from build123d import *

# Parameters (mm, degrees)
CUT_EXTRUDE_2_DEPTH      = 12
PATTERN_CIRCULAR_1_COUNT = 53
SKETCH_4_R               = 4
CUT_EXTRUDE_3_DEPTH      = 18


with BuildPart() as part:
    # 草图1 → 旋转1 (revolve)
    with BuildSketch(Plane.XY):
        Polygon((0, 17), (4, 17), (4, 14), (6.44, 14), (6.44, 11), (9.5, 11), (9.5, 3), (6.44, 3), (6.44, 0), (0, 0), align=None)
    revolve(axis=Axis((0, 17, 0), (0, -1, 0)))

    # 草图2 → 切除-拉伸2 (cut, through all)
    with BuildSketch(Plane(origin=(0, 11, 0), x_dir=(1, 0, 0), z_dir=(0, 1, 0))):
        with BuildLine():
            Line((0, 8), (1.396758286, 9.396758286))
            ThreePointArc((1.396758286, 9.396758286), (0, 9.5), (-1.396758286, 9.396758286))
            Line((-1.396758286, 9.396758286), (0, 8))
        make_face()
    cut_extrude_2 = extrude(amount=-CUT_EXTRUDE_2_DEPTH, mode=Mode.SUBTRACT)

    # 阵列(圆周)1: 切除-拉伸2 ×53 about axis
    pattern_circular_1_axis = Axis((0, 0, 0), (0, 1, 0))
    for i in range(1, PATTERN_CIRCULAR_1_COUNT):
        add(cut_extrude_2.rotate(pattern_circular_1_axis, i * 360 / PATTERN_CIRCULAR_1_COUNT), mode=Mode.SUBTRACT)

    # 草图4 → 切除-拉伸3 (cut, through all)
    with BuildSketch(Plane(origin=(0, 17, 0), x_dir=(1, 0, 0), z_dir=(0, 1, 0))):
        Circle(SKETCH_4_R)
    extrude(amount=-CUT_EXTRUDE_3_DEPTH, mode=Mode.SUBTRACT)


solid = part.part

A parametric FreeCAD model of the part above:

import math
import FreeCAD as App
import Part
import Sketcher

doc = App.newDocument("Part")
body = doc.addObject("PartDesign::Body", "Body")

# Sketch on XY plane
sketch1 = body.newObject("Sketcher::SketchObject", "Sketch")
sketch1.AttachmentSupport = (doc.getObject("XY_Plane"), [""])
sketch1.MapMode = "FlatFace"
sketch1.addGeometry([
    Part.LineSegment(App.Vector(4, 17, 0), App.Vector(0, 17, 0)),  # 0
    Part.LineSegment(App.Vector(0, 17, 0), App.Vector(0, 0, 0)),  # 1
    Part.LineSegment(App.Vector(0, 0, 0), App.Vector(6.4, 0, 0)),  # 2
    Part.LineSegment(App.Vector(6.4, 0, 0), App.Vector(6.4, 3, 0)),  # 3
    Part.LineSegment(App.Vector(6.4, 3, 0), App.Vector(9.5, 3, 0)),  # 4
    Part.LineSegment(App.Vector(9.5, 3, 0), App.Vector(9.5, 11, 0)),  # 5
    Part.LineSegment(App.Vector(9.5, 11, 0), App.Vector(6.4, 11, 0)),  # 6
    Part.LineSegment(App.Vector(6.4, 11, 0), App.Vector(6.4, 14, 0)),  # 7
    Part.LineSegment(App.Vector(6.4, 14, 0), App.Vector(4, 14, 0)),  # 8
    Part.LineSegment(App.Vector(4, 14, 0), App.Vector(4, 17, 0)),  # 9
], False)
sketch1.addConstraint([
    Sketcher.Constraint("Coincident", 0, 2, 1, 1),
    Sketcher.Constraint("Coincident", 1, 2, 2, 1),
    Sketcher.Constraint("Coincident", 2, 2, 3, 1),
    Sketcher.Constraint("Coincident", 3, 2, 4, 1),
    Sketcher.Constraint("Coincident", 4, 2, 5, 1),
    Sketcher.Constraint("Coincident", 5, 2, 6, 1),
    Sketcher.Constraint("Coincident", 6, 2, 7, 1),
    Sketcher.Constraint("Coincident", 7, 2, 8, 1),
    Sketcher.Constraint("Coincident", 8, 2, 9, 1),
    Sketcher.Constraint("Coincident", 9, 2, 0, 1),
    Sketcher.Constraint("Horizontal", 0),
    Sketcher.Constraint("Vertical", 1),
    Sketcher.Constraint("Horizontal", 2),
    Sketcher.Constraint("Vertical", 3),
    Sketcher.Constraint("Horizontal", 4),
    Sketcher.Constraint("Vertical", 5),
    Sketcher.Constraint("Horizontal", 6),
    Sketcher.Constraint("Vertical", 7),
    Sketcher.Constraint("Horizontal", 8),
    Sketcher.Constraint("Vertical", 9),
    Sketcher.Constraint("Coincident", 1, 2, -1, 1),
    Sketcher.Constraint("Vertical", 3, 2, 6, 2),
    Sketcher.Constraint("Equal", 3, 7),
    Sketcher.Constraint("Equal", 7, 9),
    Sketcher.Constraint("DistanceX", 0, 2, 0, 1, 4.0),
    Sketcher.Constraint("DistanceY", 1, 2, 1, 1, 17.0),
    Sketcher.Constraint("DistanceY", 3, 1, 3, 2, 3.0),
    Sketcher.Constraint("DistanceX", 2, 1, 2, 2, 6.44),
    Sketcher.Constraint("DistanceX", 4, 1, 4, 2, 3.06),
])
revolution = body.newObject("PartDesign::Revolution", "Revolution")
revolution.Profile = sketch1
revolution.ReferenceAxis = (sketch1, ["V_Axis"])
revolution.Angle = 360

# Sketch on XZ plane
sketch2 = body.newObject("Sketcher::SketchObject", "Sketch001")
sketch2.AttachmentSupport = (doc.getObject("XZ_Plane"), [""])
sketch2.MapMode = "FlatFace"
sketch2.AttachmentOffset = App.Placement(App.Vector(0, 0, -11), App.Rotation())
sketch2.addGeometry([
    Part.LineSegment(App.Vector(0, -8, 0), App.Vector(1.4, -9.4, 0)),
    Part.ArcOfCircle(Part.Circle(App.Vector(0, 0, 0), App.Vector(0, 0, 1), 9.5), math.radians(-98.45), math.radians(-81.55)),
    Part.LineSegment(App.Vector(-1.4, -9.4, 0), App.Vector(0, -8, 0)),
], False)
sketch2.addConstraint([
    Sketcher.Constraint("Coincident", 0, 2, 1, 2),
    Sketcher.Constraint("Coincident", 1, 1, 2, 1),
    Sketcher.Constraint("Coincident", 2, 2, 0, 1),
    Sketcher.Constraint("Coincident", 1, 3, -1, 1),
    Sketcher.Constraint("PointOnObject", 2, 2, -2),
    Sketcher.Constraint("Perpendicular", 0, 2),
    Sketcher.Constraint("Horizontal", 0, 2, 1, 1),
    Sketcher.Constraint("Radius", 1, 9.5),
    Sketcher.Constraint("DistanceY", 2, 2, -1, 1, 8.0),
])
pocket1 = body.newObject("PartDesign::Pocket", "Pocket")
pocket1.Profile = sketch2
pocket1.Type = "ThroughAll"
pocket1.Reversed = True
doc.recompute()

polarpattern = body.newObject("PartDesign::PolarPattern", "PolarPattern")
polarpattern.Originals = [pocket1]
polarpattern.Axis = (doc.getObject("Y_Axis"), [""])
polarpattern.Angle = 360
polarpattern.Occurrences = 53
body.Tip = polarpattern

# Sketch on XZ plane
sketch3 = body.newObject("Sketcher::SketchObject", "Sketch002")
sketch3.AttachmentSupport = (doc.getObject("XZ_Plane"), [""])
sketch3.MapMode = "FlatFace"
sketch3.AttachmentOffset = App.Placement(App.Vector(0, 0, -17), App.Rotation())
sketch3.addGeometry(Part.Circle(App.Vector(0, 0, 0), App.Vector(0, 0, 1), 4), False)
sketch3.addConstraint([
    Sketcher.Constraint("Coincident", 0, 3, -1, 1),
    Sketcher.Constraint("Diameter", 0, 8.0),
])
pocket2 = body.newObject("PartDesign::Pocket", "Pocket001")
pocket2.Profile = sketch3
pocket2.Type = "ThroughAll"
pocket2.Reversed = True

doc.recompute()
